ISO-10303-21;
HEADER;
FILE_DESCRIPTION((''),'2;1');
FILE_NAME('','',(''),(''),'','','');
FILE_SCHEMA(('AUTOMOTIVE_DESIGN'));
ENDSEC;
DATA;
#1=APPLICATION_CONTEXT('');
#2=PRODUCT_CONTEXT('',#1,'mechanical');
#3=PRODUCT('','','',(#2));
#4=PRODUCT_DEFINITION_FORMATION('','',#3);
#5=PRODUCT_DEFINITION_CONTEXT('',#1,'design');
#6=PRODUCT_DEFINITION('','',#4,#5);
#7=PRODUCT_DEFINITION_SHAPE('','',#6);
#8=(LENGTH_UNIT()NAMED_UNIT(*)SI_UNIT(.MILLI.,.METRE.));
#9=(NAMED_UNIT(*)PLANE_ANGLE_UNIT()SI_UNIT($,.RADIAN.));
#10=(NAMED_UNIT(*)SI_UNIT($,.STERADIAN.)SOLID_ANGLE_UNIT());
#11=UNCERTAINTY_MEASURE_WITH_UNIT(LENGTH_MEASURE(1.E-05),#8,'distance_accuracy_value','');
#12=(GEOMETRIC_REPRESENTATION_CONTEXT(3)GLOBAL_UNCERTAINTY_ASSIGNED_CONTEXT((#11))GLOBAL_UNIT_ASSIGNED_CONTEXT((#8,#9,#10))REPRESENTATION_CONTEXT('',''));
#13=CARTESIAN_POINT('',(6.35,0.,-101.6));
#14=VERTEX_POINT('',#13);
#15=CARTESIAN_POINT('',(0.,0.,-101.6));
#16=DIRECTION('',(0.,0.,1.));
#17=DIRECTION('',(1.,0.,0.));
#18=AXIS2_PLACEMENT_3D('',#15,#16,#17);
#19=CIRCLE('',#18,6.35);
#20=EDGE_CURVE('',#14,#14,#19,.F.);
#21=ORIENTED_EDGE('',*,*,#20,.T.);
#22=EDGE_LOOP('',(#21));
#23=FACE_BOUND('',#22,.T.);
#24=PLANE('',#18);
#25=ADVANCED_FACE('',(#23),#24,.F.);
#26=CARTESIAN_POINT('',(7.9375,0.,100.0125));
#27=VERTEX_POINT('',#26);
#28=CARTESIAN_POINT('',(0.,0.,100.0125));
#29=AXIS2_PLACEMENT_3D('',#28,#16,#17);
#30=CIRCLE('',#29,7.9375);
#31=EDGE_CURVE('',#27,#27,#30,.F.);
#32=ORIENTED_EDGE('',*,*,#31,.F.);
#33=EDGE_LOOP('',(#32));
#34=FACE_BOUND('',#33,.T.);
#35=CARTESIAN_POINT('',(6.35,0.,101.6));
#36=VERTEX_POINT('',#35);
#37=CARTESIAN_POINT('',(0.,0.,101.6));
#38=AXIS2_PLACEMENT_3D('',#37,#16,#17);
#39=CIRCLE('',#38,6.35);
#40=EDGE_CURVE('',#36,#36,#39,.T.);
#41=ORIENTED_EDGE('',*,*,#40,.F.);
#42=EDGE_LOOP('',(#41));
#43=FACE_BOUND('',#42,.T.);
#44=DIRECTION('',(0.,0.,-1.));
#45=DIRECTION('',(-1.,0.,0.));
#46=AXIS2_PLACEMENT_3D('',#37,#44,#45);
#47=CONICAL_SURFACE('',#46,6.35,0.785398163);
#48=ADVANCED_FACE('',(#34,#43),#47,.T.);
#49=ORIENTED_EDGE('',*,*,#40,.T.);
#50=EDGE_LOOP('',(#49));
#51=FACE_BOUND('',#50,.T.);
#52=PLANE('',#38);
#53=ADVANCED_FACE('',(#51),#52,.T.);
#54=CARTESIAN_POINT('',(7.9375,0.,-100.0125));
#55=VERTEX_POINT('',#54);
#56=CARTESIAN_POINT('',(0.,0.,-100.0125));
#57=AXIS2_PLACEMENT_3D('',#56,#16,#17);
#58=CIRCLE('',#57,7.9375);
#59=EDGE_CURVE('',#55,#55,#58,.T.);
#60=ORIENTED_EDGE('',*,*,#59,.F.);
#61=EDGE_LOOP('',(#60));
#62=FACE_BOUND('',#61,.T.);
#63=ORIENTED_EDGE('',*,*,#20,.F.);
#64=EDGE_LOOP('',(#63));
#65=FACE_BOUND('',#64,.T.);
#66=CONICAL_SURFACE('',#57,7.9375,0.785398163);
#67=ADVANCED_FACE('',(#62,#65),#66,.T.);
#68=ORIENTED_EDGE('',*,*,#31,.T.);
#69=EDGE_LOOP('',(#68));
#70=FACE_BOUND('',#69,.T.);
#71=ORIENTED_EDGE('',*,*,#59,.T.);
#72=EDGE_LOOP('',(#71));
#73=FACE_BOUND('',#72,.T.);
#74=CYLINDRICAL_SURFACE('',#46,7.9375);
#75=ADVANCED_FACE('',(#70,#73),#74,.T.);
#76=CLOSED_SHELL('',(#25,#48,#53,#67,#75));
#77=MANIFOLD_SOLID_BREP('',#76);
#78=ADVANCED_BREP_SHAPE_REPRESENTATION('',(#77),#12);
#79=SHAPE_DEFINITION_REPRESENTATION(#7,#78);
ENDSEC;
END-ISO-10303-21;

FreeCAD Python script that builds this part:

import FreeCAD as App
import Part
import Sketcher
Q = App.Units.Quantity


def edges_at(feature, points):
    """Names of the edges that pass closest to the given points."""
    edges = feature.Shape.Edges
    near = lambda p: min(range(len(edges)), key=lambda i: edges[i].distToShape(Part.Vertex(*p))[0])
    return sorted({f"Edge{near(p) + 1}" for p in points})

doc = App.newDocument("Part")
params = doc.addObject("Spreadsheet::Sheet", "Params")
for row, (alias, value) in enumerate([
    ("sketch1_diameter", "0.625 in"),
    ("pad1_length", "8 in"),
    ("chamfer_size", "0.0625 in"),
], start=1):
    params.set(f"A{row}", alias)
    params.set(f"B{row}", "=" + value)
    params.setAlias(f"B{row}", alias)

body = doc.addObject("PartDesign::Body", "Body")

# Sketch on XY plane
sketch1 = body.newObject("Sketcher::SketchObject", "Sketch")
sketch1.AttachmentSupport = (doc.getObject("XY_Plane"), [""])
sketch1.MapMode = "FlatFace"
sketch1.addGeometry(Part.Circle(App.Vector(0, 0, 0), App.Vector(0, 0, 1), 8), False)
sketch1.addConstraint([
    Sketcher.Constraint("Coincident", 0, 3, -1, 1),
    Sketcher.Constraint("Diameter", 0, Q("0.625 in")),
])
sketch1.setExpression("Constraints[1]", "Params.sketch1_diameter")
pad1 = body.newObject("PartDesign::Pad", "Pad")
pad1.Profile = sketch1
pad1.setExpression("Length", "Params.pad1_length")
pad1.Midplane = True
doc.recompute()

chamfer = body.newObject("PartDesign::Chamfer", "Chamfer")
chamfer.Base = (pad1, edges_at(pad1, [(-7.938, 0, -101.6), (-7.938, 0, 101.6)]))
chamfer.setExpression("Size", "Params.chamfer_size")

doc.recompute()
